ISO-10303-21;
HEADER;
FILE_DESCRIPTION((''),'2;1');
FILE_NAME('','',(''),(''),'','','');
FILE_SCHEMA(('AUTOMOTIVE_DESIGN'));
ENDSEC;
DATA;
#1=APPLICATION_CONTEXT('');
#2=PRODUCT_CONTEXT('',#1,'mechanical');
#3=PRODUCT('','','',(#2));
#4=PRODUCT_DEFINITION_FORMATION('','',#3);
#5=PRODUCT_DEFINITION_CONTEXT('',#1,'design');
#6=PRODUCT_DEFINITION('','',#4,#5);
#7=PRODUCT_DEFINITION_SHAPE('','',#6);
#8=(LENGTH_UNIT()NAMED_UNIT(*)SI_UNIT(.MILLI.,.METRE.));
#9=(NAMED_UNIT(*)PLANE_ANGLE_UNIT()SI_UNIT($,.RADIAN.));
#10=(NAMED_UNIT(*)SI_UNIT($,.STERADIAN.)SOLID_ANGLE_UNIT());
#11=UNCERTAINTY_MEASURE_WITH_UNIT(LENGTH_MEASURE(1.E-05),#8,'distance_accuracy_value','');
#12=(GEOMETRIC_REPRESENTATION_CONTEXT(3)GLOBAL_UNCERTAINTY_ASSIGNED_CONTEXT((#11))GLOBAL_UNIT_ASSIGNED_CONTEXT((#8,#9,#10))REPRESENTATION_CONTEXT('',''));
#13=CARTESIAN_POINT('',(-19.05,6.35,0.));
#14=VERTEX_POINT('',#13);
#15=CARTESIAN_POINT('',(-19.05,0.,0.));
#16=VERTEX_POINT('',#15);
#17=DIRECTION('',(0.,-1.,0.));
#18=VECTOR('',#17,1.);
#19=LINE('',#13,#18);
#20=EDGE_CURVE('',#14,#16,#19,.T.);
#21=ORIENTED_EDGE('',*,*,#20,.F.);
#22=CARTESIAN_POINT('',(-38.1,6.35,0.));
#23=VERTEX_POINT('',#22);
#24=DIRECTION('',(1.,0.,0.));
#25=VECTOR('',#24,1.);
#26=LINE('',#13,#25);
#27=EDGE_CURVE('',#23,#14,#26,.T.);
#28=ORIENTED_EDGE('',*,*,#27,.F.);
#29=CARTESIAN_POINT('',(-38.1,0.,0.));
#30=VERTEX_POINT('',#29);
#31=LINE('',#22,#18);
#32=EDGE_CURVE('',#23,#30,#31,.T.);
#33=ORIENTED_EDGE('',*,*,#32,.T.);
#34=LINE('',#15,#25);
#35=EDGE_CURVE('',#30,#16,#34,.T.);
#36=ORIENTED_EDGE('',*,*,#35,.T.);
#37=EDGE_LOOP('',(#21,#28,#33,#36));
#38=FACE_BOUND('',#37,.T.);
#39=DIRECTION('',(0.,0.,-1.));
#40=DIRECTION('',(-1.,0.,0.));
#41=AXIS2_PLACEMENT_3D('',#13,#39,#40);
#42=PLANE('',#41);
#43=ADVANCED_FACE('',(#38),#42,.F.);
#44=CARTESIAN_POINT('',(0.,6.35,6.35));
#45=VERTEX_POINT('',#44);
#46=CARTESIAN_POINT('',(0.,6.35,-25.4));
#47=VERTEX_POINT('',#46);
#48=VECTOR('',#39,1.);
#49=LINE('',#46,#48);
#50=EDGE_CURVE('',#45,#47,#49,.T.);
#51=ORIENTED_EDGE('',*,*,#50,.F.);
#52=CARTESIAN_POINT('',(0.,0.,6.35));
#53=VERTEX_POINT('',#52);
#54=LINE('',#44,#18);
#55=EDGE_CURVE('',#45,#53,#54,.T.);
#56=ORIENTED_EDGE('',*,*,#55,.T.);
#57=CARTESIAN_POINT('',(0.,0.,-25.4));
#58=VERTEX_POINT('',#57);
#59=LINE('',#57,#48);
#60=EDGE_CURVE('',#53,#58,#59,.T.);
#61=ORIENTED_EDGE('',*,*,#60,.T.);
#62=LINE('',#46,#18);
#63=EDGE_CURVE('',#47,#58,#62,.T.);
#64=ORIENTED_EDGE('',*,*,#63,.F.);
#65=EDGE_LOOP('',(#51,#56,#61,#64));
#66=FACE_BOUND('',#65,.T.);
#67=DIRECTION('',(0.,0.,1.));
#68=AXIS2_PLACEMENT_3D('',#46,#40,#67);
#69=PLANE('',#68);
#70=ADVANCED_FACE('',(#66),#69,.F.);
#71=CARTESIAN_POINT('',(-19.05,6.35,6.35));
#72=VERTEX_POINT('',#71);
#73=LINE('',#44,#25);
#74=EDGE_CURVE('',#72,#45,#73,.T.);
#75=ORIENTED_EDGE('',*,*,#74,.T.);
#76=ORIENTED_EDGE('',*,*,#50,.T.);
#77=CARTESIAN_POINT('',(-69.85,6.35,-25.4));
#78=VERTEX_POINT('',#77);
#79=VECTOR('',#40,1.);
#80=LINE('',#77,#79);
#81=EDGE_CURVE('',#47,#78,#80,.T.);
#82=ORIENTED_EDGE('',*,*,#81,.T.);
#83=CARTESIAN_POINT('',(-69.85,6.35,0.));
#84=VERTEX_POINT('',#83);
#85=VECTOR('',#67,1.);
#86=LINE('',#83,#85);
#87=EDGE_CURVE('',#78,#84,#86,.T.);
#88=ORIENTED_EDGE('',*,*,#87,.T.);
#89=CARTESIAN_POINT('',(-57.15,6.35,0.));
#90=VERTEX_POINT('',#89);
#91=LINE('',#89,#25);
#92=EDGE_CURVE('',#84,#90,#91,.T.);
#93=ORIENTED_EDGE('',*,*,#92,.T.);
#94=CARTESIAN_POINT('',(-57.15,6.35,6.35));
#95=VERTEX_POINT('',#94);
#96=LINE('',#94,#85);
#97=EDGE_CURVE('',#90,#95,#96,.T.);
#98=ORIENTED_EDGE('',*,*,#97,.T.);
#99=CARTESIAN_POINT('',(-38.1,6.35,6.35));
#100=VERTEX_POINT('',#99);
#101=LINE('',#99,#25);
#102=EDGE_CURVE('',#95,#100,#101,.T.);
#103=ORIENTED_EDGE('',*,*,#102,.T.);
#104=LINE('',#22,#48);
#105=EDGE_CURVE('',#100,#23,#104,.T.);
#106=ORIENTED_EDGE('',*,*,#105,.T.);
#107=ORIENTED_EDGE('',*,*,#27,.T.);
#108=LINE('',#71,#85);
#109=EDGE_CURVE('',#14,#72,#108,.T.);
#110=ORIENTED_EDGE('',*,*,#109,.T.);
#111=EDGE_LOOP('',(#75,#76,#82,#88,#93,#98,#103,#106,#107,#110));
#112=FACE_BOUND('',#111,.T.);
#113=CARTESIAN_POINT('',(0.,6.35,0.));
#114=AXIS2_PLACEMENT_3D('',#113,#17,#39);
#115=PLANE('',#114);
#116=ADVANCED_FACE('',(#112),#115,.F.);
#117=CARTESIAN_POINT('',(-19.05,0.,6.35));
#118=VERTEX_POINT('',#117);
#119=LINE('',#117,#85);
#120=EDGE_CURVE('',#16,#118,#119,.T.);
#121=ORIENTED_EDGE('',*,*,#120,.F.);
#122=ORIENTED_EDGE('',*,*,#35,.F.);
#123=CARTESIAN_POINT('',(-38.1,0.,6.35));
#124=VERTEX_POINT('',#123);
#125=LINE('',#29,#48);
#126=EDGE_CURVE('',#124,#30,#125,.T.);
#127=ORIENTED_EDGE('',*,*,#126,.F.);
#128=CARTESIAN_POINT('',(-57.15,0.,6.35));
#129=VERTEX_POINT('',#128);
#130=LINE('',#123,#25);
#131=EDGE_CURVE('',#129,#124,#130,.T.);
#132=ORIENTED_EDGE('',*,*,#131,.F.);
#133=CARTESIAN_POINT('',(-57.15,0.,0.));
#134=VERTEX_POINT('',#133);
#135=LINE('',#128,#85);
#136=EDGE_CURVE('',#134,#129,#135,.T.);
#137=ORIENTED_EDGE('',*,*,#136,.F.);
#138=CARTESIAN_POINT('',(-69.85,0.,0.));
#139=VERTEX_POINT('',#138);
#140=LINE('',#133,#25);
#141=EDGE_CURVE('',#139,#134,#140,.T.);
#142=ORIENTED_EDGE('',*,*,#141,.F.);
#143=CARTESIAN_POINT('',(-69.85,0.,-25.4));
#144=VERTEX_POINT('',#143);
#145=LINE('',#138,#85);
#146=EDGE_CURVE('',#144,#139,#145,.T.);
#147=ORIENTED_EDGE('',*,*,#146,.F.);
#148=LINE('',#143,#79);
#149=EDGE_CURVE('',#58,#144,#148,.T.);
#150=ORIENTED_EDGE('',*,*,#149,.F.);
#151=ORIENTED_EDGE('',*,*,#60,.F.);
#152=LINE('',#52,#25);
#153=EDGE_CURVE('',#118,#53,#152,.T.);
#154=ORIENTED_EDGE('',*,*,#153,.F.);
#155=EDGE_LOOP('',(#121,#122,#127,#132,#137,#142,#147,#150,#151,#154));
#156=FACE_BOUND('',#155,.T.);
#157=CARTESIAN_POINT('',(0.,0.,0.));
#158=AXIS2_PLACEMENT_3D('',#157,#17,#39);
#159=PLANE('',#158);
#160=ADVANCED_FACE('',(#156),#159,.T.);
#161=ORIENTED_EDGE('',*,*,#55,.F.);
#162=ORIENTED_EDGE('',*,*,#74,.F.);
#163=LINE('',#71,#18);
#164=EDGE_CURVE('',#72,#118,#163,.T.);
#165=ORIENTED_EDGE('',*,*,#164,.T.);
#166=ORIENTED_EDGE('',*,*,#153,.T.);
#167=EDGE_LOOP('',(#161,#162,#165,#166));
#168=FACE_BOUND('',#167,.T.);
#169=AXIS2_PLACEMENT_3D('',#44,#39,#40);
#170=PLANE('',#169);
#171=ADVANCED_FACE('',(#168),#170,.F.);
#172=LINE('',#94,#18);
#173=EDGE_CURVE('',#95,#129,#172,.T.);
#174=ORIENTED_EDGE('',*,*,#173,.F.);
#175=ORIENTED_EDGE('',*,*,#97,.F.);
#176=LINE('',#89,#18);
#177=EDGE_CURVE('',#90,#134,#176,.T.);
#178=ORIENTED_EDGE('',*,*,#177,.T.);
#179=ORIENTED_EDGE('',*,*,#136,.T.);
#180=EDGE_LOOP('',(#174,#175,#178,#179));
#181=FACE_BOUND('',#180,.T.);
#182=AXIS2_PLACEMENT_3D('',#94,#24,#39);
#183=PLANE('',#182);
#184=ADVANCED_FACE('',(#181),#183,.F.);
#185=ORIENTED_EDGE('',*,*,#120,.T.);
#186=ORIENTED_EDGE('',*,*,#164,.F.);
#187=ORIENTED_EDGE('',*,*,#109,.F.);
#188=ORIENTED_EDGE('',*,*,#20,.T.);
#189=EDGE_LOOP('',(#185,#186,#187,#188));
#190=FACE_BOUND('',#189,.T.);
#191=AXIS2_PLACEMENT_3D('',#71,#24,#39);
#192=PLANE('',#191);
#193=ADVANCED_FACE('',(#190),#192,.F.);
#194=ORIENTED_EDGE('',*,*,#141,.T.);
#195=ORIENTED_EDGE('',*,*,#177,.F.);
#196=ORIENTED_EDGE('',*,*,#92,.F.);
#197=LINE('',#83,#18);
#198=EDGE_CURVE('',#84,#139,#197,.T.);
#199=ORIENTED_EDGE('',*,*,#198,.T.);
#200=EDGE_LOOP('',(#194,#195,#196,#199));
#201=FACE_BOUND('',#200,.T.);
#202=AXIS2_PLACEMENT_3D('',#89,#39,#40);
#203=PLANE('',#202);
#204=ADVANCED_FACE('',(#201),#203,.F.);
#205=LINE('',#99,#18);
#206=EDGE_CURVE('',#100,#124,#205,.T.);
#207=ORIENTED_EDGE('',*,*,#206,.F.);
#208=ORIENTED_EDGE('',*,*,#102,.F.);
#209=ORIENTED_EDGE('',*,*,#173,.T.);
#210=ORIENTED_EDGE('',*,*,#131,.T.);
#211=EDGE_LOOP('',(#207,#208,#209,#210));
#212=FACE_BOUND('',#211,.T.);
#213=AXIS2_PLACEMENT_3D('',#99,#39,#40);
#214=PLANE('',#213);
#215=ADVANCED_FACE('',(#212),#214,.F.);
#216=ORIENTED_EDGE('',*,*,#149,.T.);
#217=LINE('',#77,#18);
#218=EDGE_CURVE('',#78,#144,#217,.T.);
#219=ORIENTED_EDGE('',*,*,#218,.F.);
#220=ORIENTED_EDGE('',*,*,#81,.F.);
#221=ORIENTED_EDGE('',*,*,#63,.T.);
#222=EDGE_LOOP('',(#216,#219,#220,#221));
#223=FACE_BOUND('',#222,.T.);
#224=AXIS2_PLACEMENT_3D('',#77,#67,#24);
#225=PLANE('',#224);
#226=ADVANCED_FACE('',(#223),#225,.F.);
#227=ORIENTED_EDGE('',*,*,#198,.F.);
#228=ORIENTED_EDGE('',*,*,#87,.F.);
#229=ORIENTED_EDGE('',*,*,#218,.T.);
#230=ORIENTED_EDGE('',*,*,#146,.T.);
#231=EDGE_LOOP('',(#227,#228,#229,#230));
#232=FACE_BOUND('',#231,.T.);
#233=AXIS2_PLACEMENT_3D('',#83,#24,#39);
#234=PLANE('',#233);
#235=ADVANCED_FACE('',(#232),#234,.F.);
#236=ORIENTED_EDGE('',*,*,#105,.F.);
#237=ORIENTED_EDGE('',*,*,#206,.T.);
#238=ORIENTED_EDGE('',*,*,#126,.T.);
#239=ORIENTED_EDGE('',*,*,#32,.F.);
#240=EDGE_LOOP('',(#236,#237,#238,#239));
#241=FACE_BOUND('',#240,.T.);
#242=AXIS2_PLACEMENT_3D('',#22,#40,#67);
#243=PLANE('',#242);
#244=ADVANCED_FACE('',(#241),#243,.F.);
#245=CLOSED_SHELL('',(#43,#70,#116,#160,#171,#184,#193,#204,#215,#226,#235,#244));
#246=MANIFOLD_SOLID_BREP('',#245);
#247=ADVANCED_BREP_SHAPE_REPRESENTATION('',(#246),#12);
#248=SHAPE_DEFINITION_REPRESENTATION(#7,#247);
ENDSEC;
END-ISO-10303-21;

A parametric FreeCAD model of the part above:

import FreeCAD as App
import Part
import Sketcher
from FreeCAD import Vector
Q = App.Units.Quantity


def add_polygon(sketch, points):
    """Adds a closed chain of lines whose ends are joined by coincident constraints."""
    first, n = sketch.GeometryCount, len(points)
    for a, b in zip(points, points[1:] + points[:1]):
        sketch.addGeometry(Part.LineSegment(App.Vector(*a, 0), App.Vector(*b, 0)), False)
    for i in range(n):
        sketch.addConstraint(Sketcher.Constraint("Coincident", first + i, 2, first + (i + 1) % n, 1))

doc = App.newDocument("Part")
params = doc.addObject("Spreadsheet::Sheet", "Params")
for row, (alias, value) in enumerate([
    ("sketch1_height", "1 in"),
    ("sketch1_width", "0.5 in"),
    ("sketch1_height2", "0.25 in"),
    ("pad1_length", "0.25 in"),
], start=1):
    params.set(f"A{row}", alias)
    params.set(f"B{row}", "=" + value)
    params.setAlias(f"B{row}", alias)

body = doc.addObject("PartDesign::Body", "Body")

# Sketch on XZ plane
sketch1 = doc.addObject("Sketcher::SketchObject", "Sketch")
body.addObject(sketch1)
sketch1.AttachmentSupport = (doc.XZ_Plane, [""])
sketch1.MapMode = "FlatFace"
add_polygon(sketch1, [(0, -25), (-70, -25), (-70, 0), (-57, 0), (-57, 6), (-38, 6), (-38, 0), (-19, 0), (-19, 6), (0, 6)])  # lines 0-9
sketch1.addConstraint(Sketcher.Constraint("Horizontal", 0))
sketch1.addConstraint(Sketcher.Constraint("Vertical", 1))
sketch1.addConstraint(Sketcher.Constraint("Horizontal", 2))
sketch1.addConstraint(Sketcher.Constraint("Vertical", 3))
sketch1.addConstraint(Sketcher.Constraint("Horizontal", 4))
sketch1.addConstraint(Sketcher.Constraint("Vertical", 5))
sketch1.addConstraint(Sketcher.Constraint("Horizontal", 6))
sketch1.addConstraint(Sketcher.Constraint("Vertical", 7))
sketch1.addConstraint(Sketcher.Constraint("Horizontal", 8))
sketch1.addConstraint(Sketcher.Constraint("Vertical", 9))
sketch1.addConstraint(Sketcher.Constraint("PointOnObject", 1, 2, -1))
sketch1.addConstraint(Sketcher.Constraint("PointOnObject", 5, 2, -1))
sketch1.addConstraint(Sketcher.Constraint("PointOnObject", 8, 2, -2))
sketch1.addConstraint(Sketcher.Constraint("Horizontal", 4, 2, 7, 2))
sketch1.addConstraint(Sketcher.Constraint("Equal", 4, 6))
sketch1.addConstraint(Sketcher.Constraint("Equal", 6, 8))
sketch1.addConstraint(Sketcher.Constraint("DistanceY", 1, 1, 1, 2, Q("1 in")))
sketch1.addConstraint(Sketcher.Constraint("DistanceX", 2, 1, 2, 2, Q("0.5 in")))
sketch1.addConstraint(Sketcher.Constraint("DistanceX", 1, 2, 6, 2, Q("2 in")))
sketch1.addConstraint(Sketcher.Constraint("DistanceY", 3, 1, 3, 2, Q("0.25 in")))
sketch1.setExpression("Constraints[26]", "Params.sketch1_height")
sketch1.setExpression("Constraints[27]", "Params.sketch1_width")
sketch1.setExpression("Constraints[29]", "Params.sketch1_height2")
pad1 = doc.addObject("PartDesign::Pad", "Pad")
body.addObject(pad1)
pad1.Profile = sketch1
pad1.setExpression("Length", "Params.pad1_length")
pad1.Reversed = True

doc.recompute()
